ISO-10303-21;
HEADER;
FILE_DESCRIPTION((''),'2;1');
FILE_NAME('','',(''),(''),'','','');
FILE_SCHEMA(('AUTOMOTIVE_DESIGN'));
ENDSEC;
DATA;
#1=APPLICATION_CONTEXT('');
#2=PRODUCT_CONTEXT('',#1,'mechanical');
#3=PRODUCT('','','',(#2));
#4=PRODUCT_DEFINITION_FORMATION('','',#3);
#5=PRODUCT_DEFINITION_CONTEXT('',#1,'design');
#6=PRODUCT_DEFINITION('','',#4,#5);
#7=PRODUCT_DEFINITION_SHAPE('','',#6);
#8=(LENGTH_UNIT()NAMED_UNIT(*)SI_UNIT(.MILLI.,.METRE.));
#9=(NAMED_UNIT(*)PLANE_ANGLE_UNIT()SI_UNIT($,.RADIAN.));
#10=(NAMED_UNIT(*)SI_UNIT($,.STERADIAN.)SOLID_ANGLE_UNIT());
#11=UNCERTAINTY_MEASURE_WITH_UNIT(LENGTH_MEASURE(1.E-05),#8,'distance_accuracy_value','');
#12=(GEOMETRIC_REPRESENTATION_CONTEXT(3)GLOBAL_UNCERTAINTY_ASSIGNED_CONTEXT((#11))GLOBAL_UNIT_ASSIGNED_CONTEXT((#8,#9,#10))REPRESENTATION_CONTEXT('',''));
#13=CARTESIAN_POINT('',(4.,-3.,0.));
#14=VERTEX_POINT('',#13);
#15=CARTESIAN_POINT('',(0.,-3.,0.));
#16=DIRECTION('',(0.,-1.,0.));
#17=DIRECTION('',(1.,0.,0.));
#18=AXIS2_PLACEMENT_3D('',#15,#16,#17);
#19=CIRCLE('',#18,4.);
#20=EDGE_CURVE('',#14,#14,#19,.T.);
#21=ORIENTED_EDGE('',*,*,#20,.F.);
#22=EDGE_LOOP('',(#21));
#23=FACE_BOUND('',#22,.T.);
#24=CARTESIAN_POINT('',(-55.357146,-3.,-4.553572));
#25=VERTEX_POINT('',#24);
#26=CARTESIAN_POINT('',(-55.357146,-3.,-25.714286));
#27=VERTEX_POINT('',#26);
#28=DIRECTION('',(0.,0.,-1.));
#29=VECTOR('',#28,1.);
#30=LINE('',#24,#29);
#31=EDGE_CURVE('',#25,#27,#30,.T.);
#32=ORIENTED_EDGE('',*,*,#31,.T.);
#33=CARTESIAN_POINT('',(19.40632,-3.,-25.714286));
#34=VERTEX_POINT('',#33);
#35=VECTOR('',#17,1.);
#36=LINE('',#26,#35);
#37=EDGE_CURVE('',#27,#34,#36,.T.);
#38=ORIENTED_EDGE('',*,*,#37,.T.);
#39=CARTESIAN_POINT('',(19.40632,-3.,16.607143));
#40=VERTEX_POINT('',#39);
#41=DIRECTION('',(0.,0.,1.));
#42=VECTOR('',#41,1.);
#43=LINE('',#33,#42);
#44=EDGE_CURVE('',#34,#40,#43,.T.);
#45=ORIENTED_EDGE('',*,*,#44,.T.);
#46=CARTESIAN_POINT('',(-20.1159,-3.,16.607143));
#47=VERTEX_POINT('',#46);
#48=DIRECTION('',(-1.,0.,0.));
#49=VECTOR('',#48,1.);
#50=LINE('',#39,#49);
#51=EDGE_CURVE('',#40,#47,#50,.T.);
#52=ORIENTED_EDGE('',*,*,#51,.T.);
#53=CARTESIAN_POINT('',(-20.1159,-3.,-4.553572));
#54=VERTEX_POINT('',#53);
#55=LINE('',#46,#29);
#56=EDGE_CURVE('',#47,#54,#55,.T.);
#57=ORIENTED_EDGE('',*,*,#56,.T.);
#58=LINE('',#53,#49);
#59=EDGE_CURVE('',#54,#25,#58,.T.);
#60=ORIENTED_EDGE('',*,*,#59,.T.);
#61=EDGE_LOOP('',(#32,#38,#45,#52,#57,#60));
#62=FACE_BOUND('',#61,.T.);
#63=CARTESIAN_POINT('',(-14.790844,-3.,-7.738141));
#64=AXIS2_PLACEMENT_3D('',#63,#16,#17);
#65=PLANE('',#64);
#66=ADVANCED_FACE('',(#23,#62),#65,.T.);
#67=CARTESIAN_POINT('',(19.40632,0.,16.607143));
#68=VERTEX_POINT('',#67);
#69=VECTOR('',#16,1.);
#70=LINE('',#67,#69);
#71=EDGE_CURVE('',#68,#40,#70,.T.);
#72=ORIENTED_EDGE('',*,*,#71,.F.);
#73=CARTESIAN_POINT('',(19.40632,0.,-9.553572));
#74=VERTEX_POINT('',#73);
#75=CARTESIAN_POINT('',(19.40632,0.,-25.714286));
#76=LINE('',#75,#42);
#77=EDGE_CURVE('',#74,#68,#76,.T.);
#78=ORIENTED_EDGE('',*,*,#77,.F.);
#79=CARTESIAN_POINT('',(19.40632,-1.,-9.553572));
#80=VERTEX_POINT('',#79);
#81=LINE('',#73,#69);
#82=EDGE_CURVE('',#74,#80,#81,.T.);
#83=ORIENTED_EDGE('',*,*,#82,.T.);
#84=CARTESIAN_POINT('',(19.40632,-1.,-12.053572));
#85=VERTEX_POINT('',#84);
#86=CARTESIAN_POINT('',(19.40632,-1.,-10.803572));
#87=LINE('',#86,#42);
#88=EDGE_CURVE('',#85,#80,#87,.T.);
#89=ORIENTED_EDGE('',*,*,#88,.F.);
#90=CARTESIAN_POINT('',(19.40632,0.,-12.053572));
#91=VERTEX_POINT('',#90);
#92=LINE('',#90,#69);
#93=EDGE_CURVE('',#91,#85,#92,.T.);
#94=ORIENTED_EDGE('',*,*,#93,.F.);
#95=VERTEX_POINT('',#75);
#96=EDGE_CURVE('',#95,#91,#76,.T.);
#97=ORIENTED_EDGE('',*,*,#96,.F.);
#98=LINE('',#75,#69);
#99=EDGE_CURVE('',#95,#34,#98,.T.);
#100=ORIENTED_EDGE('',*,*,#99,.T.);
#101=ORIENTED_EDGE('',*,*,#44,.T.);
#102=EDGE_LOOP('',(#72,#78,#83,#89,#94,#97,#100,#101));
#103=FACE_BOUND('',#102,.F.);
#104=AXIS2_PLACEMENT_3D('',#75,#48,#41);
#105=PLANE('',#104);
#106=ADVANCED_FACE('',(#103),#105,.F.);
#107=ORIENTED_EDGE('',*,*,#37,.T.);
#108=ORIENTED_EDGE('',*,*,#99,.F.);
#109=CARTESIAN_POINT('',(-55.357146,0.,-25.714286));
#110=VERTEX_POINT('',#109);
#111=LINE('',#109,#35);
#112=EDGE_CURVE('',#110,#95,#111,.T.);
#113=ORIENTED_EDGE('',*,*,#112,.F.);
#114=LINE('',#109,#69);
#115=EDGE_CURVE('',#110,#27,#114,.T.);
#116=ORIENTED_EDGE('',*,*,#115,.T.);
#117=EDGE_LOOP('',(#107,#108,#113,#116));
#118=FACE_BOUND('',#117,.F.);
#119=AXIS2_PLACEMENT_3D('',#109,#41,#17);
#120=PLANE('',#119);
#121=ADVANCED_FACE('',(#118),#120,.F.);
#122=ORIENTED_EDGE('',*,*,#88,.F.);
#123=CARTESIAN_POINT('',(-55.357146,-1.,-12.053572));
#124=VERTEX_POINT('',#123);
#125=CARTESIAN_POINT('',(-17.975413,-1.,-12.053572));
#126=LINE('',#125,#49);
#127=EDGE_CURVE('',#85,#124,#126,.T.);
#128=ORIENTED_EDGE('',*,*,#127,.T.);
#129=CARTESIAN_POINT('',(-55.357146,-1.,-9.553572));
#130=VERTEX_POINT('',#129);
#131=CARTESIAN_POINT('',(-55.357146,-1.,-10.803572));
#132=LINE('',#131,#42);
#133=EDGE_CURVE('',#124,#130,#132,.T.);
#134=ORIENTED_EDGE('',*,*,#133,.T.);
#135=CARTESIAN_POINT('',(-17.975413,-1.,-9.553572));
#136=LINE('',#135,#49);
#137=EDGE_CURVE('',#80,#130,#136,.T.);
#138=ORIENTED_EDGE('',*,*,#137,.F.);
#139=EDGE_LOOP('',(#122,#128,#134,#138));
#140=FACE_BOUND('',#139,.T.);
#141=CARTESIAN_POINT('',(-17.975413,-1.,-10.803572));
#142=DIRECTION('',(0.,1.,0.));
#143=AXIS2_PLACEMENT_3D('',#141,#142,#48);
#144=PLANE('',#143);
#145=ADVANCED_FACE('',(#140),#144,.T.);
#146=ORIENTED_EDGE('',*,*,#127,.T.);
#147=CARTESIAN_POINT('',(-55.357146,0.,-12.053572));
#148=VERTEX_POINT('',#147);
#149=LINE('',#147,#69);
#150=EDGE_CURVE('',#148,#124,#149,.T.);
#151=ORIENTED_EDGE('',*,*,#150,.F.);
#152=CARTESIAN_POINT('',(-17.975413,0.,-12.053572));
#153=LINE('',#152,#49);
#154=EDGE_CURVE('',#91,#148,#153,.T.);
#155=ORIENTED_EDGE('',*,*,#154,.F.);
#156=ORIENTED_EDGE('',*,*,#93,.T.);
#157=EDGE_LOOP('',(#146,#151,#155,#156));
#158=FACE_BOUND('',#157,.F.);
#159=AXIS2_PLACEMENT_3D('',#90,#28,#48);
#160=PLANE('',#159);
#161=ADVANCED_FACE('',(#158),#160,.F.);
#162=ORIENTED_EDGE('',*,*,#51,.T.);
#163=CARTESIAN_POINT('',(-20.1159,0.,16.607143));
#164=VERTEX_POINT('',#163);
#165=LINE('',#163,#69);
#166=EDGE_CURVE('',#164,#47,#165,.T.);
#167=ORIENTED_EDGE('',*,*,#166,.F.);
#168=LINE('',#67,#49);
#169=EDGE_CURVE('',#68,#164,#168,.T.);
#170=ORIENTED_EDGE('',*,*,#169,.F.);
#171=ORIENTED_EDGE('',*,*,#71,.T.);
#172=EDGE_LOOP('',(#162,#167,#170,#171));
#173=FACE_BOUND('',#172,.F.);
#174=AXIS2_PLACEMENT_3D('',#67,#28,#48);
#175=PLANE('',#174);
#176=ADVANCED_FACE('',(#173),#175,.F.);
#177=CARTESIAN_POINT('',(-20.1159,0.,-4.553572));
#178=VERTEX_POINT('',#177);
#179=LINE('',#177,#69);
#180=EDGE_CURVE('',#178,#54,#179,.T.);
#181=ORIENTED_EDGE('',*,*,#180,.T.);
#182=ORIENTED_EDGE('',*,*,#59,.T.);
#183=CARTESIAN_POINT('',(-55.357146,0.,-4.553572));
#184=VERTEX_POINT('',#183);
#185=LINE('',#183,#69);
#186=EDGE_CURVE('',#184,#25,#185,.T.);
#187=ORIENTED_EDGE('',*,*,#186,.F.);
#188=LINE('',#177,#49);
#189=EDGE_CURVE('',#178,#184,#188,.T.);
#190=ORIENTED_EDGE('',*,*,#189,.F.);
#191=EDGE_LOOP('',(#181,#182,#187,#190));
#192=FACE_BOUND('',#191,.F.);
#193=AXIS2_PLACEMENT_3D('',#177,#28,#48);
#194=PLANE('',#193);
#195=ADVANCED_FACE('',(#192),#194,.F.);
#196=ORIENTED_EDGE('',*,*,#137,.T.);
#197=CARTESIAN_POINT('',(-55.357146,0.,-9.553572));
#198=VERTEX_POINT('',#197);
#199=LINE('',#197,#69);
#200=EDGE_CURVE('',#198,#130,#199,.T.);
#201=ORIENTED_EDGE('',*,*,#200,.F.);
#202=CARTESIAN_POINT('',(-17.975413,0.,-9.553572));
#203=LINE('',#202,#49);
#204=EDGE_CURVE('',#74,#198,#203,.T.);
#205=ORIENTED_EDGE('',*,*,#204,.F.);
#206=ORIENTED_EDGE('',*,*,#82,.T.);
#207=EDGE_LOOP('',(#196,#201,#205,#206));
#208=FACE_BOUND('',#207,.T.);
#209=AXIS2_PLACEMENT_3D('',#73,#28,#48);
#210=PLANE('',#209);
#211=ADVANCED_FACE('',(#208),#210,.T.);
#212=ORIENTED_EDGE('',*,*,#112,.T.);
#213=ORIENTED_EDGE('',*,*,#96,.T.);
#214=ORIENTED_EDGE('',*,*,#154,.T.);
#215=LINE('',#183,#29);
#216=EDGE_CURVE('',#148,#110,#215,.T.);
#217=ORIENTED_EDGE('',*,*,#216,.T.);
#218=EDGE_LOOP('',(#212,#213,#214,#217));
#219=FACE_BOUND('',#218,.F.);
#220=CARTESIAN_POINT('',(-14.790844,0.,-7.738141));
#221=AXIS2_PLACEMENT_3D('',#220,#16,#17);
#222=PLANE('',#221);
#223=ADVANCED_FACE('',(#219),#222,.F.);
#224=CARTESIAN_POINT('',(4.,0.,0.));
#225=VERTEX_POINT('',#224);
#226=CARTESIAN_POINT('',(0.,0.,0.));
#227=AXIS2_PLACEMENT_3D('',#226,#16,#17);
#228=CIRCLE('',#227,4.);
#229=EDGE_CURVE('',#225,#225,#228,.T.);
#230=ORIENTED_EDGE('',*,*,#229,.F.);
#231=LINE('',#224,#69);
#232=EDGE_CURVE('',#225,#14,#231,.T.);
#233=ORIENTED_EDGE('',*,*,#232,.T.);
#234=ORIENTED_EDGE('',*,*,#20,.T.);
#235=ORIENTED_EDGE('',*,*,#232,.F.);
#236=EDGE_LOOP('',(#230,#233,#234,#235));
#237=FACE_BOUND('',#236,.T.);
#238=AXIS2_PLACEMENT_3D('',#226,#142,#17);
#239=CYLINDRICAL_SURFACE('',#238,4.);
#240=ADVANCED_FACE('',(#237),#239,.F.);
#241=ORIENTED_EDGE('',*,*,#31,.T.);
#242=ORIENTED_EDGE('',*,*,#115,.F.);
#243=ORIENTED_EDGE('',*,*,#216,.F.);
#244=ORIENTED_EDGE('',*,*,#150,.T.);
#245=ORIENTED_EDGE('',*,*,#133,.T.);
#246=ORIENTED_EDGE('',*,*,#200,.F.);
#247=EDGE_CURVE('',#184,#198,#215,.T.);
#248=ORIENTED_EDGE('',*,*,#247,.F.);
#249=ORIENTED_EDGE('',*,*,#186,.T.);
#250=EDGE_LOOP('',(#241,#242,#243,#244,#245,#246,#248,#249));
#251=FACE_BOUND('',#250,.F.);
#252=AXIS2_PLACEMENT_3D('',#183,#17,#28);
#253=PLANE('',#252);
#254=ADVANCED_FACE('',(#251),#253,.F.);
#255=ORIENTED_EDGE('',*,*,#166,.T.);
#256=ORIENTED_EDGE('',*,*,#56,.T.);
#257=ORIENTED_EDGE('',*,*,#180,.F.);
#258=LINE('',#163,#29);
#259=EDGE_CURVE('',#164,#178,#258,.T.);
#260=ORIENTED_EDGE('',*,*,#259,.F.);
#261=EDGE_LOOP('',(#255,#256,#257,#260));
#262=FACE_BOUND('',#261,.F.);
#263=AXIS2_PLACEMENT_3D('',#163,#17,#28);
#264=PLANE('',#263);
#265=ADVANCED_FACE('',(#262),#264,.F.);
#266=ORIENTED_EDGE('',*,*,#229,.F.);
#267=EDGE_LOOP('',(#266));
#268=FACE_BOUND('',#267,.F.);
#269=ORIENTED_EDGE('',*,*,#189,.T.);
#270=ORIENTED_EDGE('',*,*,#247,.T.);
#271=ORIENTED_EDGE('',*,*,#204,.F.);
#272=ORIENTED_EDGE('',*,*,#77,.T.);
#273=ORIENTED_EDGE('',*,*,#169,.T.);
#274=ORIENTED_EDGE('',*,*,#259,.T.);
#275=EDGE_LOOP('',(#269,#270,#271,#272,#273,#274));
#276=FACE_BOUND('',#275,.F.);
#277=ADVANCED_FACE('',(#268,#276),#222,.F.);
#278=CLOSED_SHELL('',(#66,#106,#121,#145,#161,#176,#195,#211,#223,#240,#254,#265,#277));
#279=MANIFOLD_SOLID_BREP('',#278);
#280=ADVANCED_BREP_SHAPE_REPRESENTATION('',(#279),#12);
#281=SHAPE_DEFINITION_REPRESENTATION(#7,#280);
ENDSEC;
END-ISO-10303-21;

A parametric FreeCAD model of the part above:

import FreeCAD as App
import Part
import Sketcher


def add_polygon(sketch, points):
    """Adds a closed chain of lines whose ends are joined by coincident constraints."""
    first, n = sketch.GeometryCount, len(points)
    for a, b in zip(points, points[1:] + points[:1]):
        sketch.addGeometry(Part.LineSegment(App.Vector(*a, 0), App.Vector(*b, 0)), False)
    for i in range(n):
        sketch.addConstraint(Sketcher.Constraint("Coincident", first + i, 2, first + (i + 1) % n, 1))

doc = App.newDocument("Part")
body = doc.addObject("PartDesign::Body", "Body")

sketch1 = body.newObject("Sketcher::SketchObject", "Sketch")
sketch1.AttachmentSupport = (doc.getObject("XZ_Plane"), [""])
sketch1.MapMode = "FlatFace"
add_polygon(sketch1, [(19.4, 16.6), (-20.1, 16.6), (-20.1, -4.6), (-55.4, -4.6), (-55.4, -25.7), (19.4, -25.7)])
sketch1.addGeometry(Part.Circle(App.Vector(0, 0, 0), App.Vector(0, 0, 1), 4), False)
sketch1.addConstraint(Sketcher.Constraint("Horizontal", 0))
sketch1.addConstraint(Sketcher.Constraint("Vertical", 1))
sketch1.addConstraint(Sketcher.Constraint("Horizontal", 2))
sketch1.addConstraint(Sketcher.Constraint("Vertical", 3))
sketch1.addConstraint(Sketcher.Constraint("Horizontal", 4))
sketch1.addConstraint(Sketcher.Constraint("Vertical", 5))
sketch1.addConstraint(Sketcher.Constraint("Coincident", 6, 3, -1, 1))
sketch1.addConstraint(Sketcher.Constraint("Equal", 1, 3))
sketch1.addConstraint(Sketcher.Constraint("Diameter", 6, 8.0))
sketch1.addConstraint(Sketcher.Constraint("DistanceX", 0, 2, 0, 1, 39.52222))
sketch1.addConstraint(Sketcher.Constraint("DistanceY", 5, 1, 5, 2, 42.321429))
sketch1.addConstraint(Sketcher.Constraint("DistanceX", 0, 2, -1, 1, 20.1159))
sketch1.addConstraint(Sketcher.Constraint("DistanceX", 2, 2, 2, 1, 35.241246))
sketch1.addConstraint(Sketcher.Constraint("DistanceY", -1, 1, 0, 2, 16.607143))
pad1 = body.newObject("PartDesign::Pad", "Pad")
pad1.Profile = sketch1
pad1.Length = 3

sketch2 = body.newObject("Sketcher::SketchObject", "Sketch001")
sketch2.AttachmentSupport = (doc.getObject("XZ_Plane"), [""])
sketch2.MapMode = "FlatFace"
add_polygon(sketch2, [(19.4, -9.6), (19.4, -12.1), (-55.4, -12.1), (-55.4, -9.6)])
sketch2.addConstraint(Sketcher.Constraint("Vertical", 0))
sketch2.addConstraint(Sketcher.Constraint("Horizontal", 1))
sketch2.addConstraint(Sketcher.Constraint("Vertical", 2))
sketch2.addConstraint(Sketcher.Constraint("Horizontal", 3))
sketch2.addConstraint(Sketcher.Constraint("DistanceY", 0, 2, 0, 1, 2.5))
sketch2.addConstraint(Sketcher.Constraint("DistanceX", 1, 2, 1, 1, 74.763466))
sketch2.addConstraint(Sketcher.Constraint("DistanceX", -1, 1, 0, 2, 19.40632))
sketch2.addConstraint(Sketcher.Constraint("DistanceY", 0, 2, -1, 1, 12.053572))
pocket1 = body.newObject("PartDesign::Pocket", "Pocket")
pocket1.Profile = sketch2
pocket1.Length = 1
pocket1.Reversed = True

doc.recompute()
